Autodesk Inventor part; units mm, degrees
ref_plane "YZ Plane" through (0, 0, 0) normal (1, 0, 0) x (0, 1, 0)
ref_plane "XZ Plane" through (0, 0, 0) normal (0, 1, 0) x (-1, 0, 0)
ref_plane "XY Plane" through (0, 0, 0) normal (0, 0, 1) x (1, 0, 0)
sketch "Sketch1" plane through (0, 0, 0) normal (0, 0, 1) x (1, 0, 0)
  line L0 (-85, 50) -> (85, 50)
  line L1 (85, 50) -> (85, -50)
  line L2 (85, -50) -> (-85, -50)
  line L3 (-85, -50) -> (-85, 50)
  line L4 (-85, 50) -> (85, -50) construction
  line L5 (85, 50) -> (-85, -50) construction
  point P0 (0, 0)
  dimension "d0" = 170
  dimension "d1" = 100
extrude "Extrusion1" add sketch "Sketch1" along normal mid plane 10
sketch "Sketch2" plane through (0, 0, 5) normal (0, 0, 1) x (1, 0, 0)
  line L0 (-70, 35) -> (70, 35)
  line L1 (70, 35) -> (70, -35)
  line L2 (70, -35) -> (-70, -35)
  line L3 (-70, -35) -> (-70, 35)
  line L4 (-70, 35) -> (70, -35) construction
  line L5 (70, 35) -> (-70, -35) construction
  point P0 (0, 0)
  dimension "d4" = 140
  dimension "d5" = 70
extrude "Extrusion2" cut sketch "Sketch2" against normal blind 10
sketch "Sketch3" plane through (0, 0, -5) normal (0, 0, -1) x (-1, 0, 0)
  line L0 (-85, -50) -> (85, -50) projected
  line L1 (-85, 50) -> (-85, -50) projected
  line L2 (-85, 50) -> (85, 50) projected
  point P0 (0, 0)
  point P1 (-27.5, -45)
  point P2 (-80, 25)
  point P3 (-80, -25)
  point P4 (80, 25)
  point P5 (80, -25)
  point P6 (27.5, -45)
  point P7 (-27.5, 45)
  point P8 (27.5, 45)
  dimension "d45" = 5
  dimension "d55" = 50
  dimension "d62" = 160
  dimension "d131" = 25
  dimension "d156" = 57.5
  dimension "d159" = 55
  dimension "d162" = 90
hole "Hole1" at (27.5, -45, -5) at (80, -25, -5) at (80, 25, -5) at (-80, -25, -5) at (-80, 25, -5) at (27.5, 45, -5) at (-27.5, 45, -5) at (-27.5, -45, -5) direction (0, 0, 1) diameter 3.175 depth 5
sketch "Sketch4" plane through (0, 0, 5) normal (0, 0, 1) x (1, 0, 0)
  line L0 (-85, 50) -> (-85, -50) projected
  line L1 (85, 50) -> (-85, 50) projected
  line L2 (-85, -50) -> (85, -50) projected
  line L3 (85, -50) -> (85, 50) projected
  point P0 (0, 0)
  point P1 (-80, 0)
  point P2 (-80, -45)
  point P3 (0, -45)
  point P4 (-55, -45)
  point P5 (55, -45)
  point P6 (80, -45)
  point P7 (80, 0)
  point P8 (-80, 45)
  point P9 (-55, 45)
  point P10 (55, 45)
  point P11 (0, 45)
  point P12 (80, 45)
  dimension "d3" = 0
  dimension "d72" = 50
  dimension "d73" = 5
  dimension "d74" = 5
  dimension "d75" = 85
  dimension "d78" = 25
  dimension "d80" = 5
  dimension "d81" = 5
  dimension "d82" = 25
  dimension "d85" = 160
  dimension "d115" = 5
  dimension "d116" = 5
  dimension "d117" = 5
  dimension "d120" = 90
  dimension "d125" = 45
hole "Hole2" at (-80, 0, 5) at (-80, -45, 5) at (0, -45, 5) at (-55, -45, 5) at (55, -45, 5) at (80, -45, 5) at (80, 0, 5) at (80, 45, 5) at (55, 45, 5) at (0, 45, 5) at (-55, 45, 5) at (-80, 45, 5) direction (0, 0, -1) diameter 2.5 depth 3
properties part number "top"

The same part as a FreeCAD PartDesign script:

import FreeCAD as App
import Part
import Sketcher

doc = App.newDocument("Part")
params = doc.addObject("Spreadsheet::Sheet", "Params")
for row, (alias, value) in enumerate([
    ("sketch1_width", "170 mm"),
    ("sketch1_height", "100 mm"),
    ("pad1_length", "10 mm"),
    ("sketch2_width", "140 mm"),
    ("sketch2_height", "70 mm"),
    ("pocket1_length", "10 mm"),
    ("hole_diameter", "3.175 mm"),
    ("hole_depth", "5 mm"),
    ("sketch4_diameter", "2.5 mm"),
    ("hole2_diameter", "2.5 mm"),
    ("hole2_depth", "3 mm"),
], start=1):
    params.set(f"A{row}", alias)
    params.set(f"B{row}", "=" + value)
    params.setAlias(f"B{row}", alias)

body = doc.addObject("PartDesign::Body", "Body")

sketch1 = body.newObject("Sketcher::SketchObject", "Sketch")
sketch1.AttachmentSupport = (doc.getObject("XY_Plane"), [""])
sketch1.MapMode = "FlatFace"
sketch1.addGeometry([
    Part.LineSegment(App.Vector(85, 50, 0), App.Vector(-85, 50, 0)),
    Part.LineSegment(App.Vector(-85, 50, 0), App.Vector(-85, -50, 0)),
    Part.LineSegment(App.Vector(-85, -50, 0), App.Vector(85, -50, 0)),
    Part.LineSegment(App.Vector(85, -50, 0), App.Vector(85, 50, 0)),
], False)
sketch1.addConstraint([
    Sketcher.Constraint("Coincident", 0, 2, 1, 1),
    Sketcher.Constraint("Coincident", 1, 2, 2, 1),
    Sketcher.Constraint("Coincident", 2, 2, 3, 1),
    Sketcher.Constraint("Coincident", 3, 2, 0, 1),
    Sketcher.Constraint("Horizontal", 0),
    Sketcher.Constraint("Vertical", 1),
    Sketcher.Constraint("Horizontal", 2),
    Sketcher.Constraint("Vertical", 3),
    Sketcher.Constraint("Symmetric", 0, 2, 2, 2, -1, 1),
    Sketcher.Constraint("DistanceX", 0, 2, 0, 1, 170.0),
    Sketcher.Constraint("DistanceY", 1, 2, 1, 1, 100.0),
])
sketch1.setExpression("Constraints[9]", "Params.sketch1_width")
sketch1.setExpression("Constraints[10]", "Params.sketch1_height")
pad1 = body.newObject("PartDesign::Pad", "Pad")
pad1.Profile = sketch1
pad1.setExpression("Length", "Params.pad1_length")
pad1.Midplane = True

sketch2 = body.newObject("Sketcher::SketchObject", "Sketch001")
sketch2.AttachmentSupport = (doc.getObject("XY_Plane"), [""])
sketch2.MapMode = "FlatFace"
sketch2.AttachmentOffset = App.Placement(App.Vector(0, 0, 5), App.Rotation())
sketch2.addGeometry([
    Part.LineSegment(App.Vector(70, 35, 0), App.Vector(-70, 35, 0)),
    Part.LineSegment(App.Vector(-70, 35, 0), App.Vector(-70, -35, 0)),
    Part.LineSegment(App.Vector(-70, -35, 0), App.Vector(70, -35, 0)),
    Part.LineSegment(App.Vector(70, -35, 0), App.Vector(70, 35, 0)),
], False)
sketch2.addConstraint([
    Sketcher.Constraint("Coincident", 0, 2, 1, 1),
    Sketcher.Constraint("Coincident", 1, 2, 2, 1),
    Sketcher.Constraint("Coincident", 2, 2, 3, 1),
    Sketcher.Constraint("Coincident", 3, 2, 0, 1),
    Sketcher.Constraint("Horizontal", 0),
    Sketcher.Constraint("Vertical", 1),
    Sketcher.Constraint("Horizontal", 2),
    Sketcher.Constraint("Vertical", 3),
    Sketcher.Constraint("Symmetric", 0, 2, 2, 2, -1, 1),
    Sketcher.Constraint("DistanceX", 0, 2, 0, 1, 140.0),
    Sketcher.Constraint("DistanceY", 1, 2, 1, 1, 70.0),
])
sketch2.setExpression("Constraints[9]", "Params.sketch2_width")
sketch2.setExpression("Constraints[10]", "Params.sketch2_height")
pocket1 = body.newObject("PartDesign::Pocket", "Pocket")
pocket1.Profile = sketch2
pocket1.setExpression("Length", "Params.pocket1_length")

sketch3 = body.newObject("Sketcher::SketchObject", "Sketch002")
sketch3.AttachmentSupport = (doc.getObject("XY_Plane"), [""])
sketch3.MapMode = "FlatFace"
sketch3.AttachmentOffset = App.Placement(App.Vector(0, 0, -5), App.Rotation())
sketch3.addGeometry([
    Part.Circle(App.Vector(27.5, -45, 0), App.Vector(0, 0, 1), 1.6),
    Part.Circle(App.Vector(80, -25, 0), App.Vector(0, 0, 1), 1.6),
    Part.Circle(App.Vector(80, 25, 0), App.Vector(0, 0, 1), 1.6),
    Part.Circle(App.Vector(-80, -25, 0), App.Vector(0, 0, 1), 1.6),
    Part.Circle(App.Vector(-80, 25, 0), App.Vector(0, 0, 1), 1.6),
    Part.Circle(App.Vector(27.5, 45, 0), App.Vector(0, 0, 1), 1.6),
    Part.Circle(App.Vector(-27.5, 45, 0), App.Vector(0, 0, 1), 1.6),
    Part.Circle(App.Vector(-27.5, -45, 0), App.Vector(0, 0, 1), 1.6),
], False)
sketch3.addConstraint([
    Sketcher.Constraint("Equal", 0, 1),
    Sketcher.Constraint("Equal", 1, 2),
    Sketcher.Constraint("Equal", 2, 3),
    Sketcher.Constraint("Equal", 3, 4),
    Sketcher.Constraint("Equal", 4, 5),
    Sketcher.Constraint("Equal", 5, 6),
    Sketcher.Constraint("Equal", 6, 7),
    Sketcher.Constraint("Symmetric", 2, 3, 3, 3, -1, 1),
    Sketcher.Constraint("Symmetric", 1, 3, 4, 3, -1, 1),
    Sketcher.Constraint("Symmetric", 0, 3, 6, 3, -1, 1),
    Sketcher.Constraint("Symmetric", 5, 3, 7, 3, -1, 1),
    Sketcher.Constraint("Symmetric", 1, 3, 3, 3, -2),
    Sketcher.Constraint("Symmetric", 5, 3, 6, 3, -2),
    Sketcher.Constraint("Diameter", 0, 3.175),
    Sketcher.Constraint("DistanceY", 0, 3, -1, 1, 45.0),
    Sketcher.Constraint("DistanceX", -1, 1, 1, 3, 80.0),
    Sketcher.Constraint("DistanceY", 1, 3, -1, 1, 25.0),
    Sketcher.Constraint("DistanceX", 6, 3, 5, 3, 55.0),
])
doc.recompute()
hole = body.newObject("PartDesign::Hole", "Hole")
hole.Profile = sketch3
hole.ThreadType = "None"
hole.setExpression("Diameter", "Params.hole_diameter")
hole.DepthType = "Dimension"
hole.setExpression("Depth", "Params.hole_depth")
hole.DrillPoint = "Flat"
hole.Reversed = True

sketch4 = body.newObject("Sketcher::SketchObject", "Sketch003")
sketch4.AttachmentSupport = (doc.getObject("XY_Plane"), [""])
sketch4.MapMode = "FlatFace"
sketch4.AttachmentOffset = App.Placement(App.Vector(0, 0, 5), App.Rotation())
sketch4.addGeometry([
    Part.Circle(App.Vector(-80, 0, 0), App.Vector(0, 0, 1), 1.2),
    Part.Circle(App.Vector(-80, -45, 0), App.Vector(0, 0, 1), 1.2),
    Part.Circle(App.Vector(0, -45, 0), App.Vector(0, 0, 1), 1.2),
    Part.Circle(App.Vector(-55, -45, 0), App.Vector(0, 0, 1), 1.2),
    Part.Circle(App.Vector(55, -45, 0), App.Vector(0, 0, 1), 1.2),
    Part.Circle(App.Vector(80, -45, 0), App.Vector(0, 0, 1), 1.2),
    Part.Circle(App.Vector(80, 0, 0), App.Vector(0, 0, 1), 1.2),
    Part.Circle(App.Vector(80, 45, 0), App.Vector(0, 0, 1), 1.2),
    Part.Circle(App.Vector(55, 45, 0), App.Vector(0, 0, 1), 1.2),
    Part.Circle(App.Vector(0, 45, 0), App.Vector(0, 0, 1), 1.2),
    Part.Circle(App.Vector(-55, 45, 0), App.Vector(0, 0, 1), 1.2),
    Part.Circle(App.Vector(-80, 45, 0), App.Vector(0, 0, 1), 1.2),
], False)
sketch4.addConstraint([
    Sketcher.Constraint("Equal", 0, 1),
    Sketcher.Constraint("Equal", 1, 2),
    Sketcher.Constraint("Equal", 2, 3),
    Sketcher.Constraint("Equal", 3, 4),
    Sketcher.Constraint("Equal", 4, 5),
    Sketcher.Constraint("Equal", 5, 6),
    Sketcher.Constraint("Equal", 6, 7),
    Sketcher.Constraint("Equal", 7, 8),
    Sketcher.Constraint("Equal", 8, 9),
    Sketcher.Constraint("Equal", 9, 10),
    Sketcher.Constraint("Equal", 10, 11),
    Sketcher.Constraint("Symmetric", 0, 3, 6, 3, -1, 1),
    Sketcher.Constraint("Symmetric", 1, 3, 7, 3, -1, 1),
    Sketcher.Constraint("Symmetric", 3, 3, 8, 3, -1, 1),
    Sketcher.Constraint("Symmetric", 2, 3, 9, 3, -1, 1),
    Sketcher.Constraint("Symmetric", 4, 3, 10, 3, -1, 1),
    Sketcher.Constraint("Symmetric", 5, 3, 11, 3, -1, 1),
    Sketcher.Constraint("Symmetric", 3, 3, 4, 3, -2),
    Sketcher.Constraint("Symmetric", 1, 3, 5, 3, -2),
    Sketcher.Constraint("PointOnObject", 0, 3, -1),
    Sketcher.Constraint("PointOnObject", 2, 3, -2),
    Sketcher.Constraint("Horizontal", 1, 3, 2, 3),
    Sketcher.Constraint("Horizontal", 2, 3, 3, 3),
    Sketcher.Constraint("Vertical", 0, 3, 1, 3),
    Sketcher.Constraint("Diameter", 0, 2.5),
    Sketcher.Constraint("DistanceX", 0, 3, -1, 1, 80.0),
    Sketcher.Constraint("DistanceY", 1, 3, -1, 1, 45.0),
    Sketcher.Constraint("DistanceX", 3, 3, -1, 1, 55.0),
])
sketch4.setExpression("Constraints[24]", "Params.sketch4_diameter")
doc.recompute()
hole2 = body.newObject("PartDesign::Hole", "Hole001")
hole2.Profile = sketch4
hole2.ThreadType = "None"
hole2.setExpression("Diameter", "Params.hole2_diameter")
hole2.DepthType = "Dimension"
hole2.setExpression("Depth", "Params.hole2_depth")
hole2.DrillPoint = "Flat"

doc.recompute()
